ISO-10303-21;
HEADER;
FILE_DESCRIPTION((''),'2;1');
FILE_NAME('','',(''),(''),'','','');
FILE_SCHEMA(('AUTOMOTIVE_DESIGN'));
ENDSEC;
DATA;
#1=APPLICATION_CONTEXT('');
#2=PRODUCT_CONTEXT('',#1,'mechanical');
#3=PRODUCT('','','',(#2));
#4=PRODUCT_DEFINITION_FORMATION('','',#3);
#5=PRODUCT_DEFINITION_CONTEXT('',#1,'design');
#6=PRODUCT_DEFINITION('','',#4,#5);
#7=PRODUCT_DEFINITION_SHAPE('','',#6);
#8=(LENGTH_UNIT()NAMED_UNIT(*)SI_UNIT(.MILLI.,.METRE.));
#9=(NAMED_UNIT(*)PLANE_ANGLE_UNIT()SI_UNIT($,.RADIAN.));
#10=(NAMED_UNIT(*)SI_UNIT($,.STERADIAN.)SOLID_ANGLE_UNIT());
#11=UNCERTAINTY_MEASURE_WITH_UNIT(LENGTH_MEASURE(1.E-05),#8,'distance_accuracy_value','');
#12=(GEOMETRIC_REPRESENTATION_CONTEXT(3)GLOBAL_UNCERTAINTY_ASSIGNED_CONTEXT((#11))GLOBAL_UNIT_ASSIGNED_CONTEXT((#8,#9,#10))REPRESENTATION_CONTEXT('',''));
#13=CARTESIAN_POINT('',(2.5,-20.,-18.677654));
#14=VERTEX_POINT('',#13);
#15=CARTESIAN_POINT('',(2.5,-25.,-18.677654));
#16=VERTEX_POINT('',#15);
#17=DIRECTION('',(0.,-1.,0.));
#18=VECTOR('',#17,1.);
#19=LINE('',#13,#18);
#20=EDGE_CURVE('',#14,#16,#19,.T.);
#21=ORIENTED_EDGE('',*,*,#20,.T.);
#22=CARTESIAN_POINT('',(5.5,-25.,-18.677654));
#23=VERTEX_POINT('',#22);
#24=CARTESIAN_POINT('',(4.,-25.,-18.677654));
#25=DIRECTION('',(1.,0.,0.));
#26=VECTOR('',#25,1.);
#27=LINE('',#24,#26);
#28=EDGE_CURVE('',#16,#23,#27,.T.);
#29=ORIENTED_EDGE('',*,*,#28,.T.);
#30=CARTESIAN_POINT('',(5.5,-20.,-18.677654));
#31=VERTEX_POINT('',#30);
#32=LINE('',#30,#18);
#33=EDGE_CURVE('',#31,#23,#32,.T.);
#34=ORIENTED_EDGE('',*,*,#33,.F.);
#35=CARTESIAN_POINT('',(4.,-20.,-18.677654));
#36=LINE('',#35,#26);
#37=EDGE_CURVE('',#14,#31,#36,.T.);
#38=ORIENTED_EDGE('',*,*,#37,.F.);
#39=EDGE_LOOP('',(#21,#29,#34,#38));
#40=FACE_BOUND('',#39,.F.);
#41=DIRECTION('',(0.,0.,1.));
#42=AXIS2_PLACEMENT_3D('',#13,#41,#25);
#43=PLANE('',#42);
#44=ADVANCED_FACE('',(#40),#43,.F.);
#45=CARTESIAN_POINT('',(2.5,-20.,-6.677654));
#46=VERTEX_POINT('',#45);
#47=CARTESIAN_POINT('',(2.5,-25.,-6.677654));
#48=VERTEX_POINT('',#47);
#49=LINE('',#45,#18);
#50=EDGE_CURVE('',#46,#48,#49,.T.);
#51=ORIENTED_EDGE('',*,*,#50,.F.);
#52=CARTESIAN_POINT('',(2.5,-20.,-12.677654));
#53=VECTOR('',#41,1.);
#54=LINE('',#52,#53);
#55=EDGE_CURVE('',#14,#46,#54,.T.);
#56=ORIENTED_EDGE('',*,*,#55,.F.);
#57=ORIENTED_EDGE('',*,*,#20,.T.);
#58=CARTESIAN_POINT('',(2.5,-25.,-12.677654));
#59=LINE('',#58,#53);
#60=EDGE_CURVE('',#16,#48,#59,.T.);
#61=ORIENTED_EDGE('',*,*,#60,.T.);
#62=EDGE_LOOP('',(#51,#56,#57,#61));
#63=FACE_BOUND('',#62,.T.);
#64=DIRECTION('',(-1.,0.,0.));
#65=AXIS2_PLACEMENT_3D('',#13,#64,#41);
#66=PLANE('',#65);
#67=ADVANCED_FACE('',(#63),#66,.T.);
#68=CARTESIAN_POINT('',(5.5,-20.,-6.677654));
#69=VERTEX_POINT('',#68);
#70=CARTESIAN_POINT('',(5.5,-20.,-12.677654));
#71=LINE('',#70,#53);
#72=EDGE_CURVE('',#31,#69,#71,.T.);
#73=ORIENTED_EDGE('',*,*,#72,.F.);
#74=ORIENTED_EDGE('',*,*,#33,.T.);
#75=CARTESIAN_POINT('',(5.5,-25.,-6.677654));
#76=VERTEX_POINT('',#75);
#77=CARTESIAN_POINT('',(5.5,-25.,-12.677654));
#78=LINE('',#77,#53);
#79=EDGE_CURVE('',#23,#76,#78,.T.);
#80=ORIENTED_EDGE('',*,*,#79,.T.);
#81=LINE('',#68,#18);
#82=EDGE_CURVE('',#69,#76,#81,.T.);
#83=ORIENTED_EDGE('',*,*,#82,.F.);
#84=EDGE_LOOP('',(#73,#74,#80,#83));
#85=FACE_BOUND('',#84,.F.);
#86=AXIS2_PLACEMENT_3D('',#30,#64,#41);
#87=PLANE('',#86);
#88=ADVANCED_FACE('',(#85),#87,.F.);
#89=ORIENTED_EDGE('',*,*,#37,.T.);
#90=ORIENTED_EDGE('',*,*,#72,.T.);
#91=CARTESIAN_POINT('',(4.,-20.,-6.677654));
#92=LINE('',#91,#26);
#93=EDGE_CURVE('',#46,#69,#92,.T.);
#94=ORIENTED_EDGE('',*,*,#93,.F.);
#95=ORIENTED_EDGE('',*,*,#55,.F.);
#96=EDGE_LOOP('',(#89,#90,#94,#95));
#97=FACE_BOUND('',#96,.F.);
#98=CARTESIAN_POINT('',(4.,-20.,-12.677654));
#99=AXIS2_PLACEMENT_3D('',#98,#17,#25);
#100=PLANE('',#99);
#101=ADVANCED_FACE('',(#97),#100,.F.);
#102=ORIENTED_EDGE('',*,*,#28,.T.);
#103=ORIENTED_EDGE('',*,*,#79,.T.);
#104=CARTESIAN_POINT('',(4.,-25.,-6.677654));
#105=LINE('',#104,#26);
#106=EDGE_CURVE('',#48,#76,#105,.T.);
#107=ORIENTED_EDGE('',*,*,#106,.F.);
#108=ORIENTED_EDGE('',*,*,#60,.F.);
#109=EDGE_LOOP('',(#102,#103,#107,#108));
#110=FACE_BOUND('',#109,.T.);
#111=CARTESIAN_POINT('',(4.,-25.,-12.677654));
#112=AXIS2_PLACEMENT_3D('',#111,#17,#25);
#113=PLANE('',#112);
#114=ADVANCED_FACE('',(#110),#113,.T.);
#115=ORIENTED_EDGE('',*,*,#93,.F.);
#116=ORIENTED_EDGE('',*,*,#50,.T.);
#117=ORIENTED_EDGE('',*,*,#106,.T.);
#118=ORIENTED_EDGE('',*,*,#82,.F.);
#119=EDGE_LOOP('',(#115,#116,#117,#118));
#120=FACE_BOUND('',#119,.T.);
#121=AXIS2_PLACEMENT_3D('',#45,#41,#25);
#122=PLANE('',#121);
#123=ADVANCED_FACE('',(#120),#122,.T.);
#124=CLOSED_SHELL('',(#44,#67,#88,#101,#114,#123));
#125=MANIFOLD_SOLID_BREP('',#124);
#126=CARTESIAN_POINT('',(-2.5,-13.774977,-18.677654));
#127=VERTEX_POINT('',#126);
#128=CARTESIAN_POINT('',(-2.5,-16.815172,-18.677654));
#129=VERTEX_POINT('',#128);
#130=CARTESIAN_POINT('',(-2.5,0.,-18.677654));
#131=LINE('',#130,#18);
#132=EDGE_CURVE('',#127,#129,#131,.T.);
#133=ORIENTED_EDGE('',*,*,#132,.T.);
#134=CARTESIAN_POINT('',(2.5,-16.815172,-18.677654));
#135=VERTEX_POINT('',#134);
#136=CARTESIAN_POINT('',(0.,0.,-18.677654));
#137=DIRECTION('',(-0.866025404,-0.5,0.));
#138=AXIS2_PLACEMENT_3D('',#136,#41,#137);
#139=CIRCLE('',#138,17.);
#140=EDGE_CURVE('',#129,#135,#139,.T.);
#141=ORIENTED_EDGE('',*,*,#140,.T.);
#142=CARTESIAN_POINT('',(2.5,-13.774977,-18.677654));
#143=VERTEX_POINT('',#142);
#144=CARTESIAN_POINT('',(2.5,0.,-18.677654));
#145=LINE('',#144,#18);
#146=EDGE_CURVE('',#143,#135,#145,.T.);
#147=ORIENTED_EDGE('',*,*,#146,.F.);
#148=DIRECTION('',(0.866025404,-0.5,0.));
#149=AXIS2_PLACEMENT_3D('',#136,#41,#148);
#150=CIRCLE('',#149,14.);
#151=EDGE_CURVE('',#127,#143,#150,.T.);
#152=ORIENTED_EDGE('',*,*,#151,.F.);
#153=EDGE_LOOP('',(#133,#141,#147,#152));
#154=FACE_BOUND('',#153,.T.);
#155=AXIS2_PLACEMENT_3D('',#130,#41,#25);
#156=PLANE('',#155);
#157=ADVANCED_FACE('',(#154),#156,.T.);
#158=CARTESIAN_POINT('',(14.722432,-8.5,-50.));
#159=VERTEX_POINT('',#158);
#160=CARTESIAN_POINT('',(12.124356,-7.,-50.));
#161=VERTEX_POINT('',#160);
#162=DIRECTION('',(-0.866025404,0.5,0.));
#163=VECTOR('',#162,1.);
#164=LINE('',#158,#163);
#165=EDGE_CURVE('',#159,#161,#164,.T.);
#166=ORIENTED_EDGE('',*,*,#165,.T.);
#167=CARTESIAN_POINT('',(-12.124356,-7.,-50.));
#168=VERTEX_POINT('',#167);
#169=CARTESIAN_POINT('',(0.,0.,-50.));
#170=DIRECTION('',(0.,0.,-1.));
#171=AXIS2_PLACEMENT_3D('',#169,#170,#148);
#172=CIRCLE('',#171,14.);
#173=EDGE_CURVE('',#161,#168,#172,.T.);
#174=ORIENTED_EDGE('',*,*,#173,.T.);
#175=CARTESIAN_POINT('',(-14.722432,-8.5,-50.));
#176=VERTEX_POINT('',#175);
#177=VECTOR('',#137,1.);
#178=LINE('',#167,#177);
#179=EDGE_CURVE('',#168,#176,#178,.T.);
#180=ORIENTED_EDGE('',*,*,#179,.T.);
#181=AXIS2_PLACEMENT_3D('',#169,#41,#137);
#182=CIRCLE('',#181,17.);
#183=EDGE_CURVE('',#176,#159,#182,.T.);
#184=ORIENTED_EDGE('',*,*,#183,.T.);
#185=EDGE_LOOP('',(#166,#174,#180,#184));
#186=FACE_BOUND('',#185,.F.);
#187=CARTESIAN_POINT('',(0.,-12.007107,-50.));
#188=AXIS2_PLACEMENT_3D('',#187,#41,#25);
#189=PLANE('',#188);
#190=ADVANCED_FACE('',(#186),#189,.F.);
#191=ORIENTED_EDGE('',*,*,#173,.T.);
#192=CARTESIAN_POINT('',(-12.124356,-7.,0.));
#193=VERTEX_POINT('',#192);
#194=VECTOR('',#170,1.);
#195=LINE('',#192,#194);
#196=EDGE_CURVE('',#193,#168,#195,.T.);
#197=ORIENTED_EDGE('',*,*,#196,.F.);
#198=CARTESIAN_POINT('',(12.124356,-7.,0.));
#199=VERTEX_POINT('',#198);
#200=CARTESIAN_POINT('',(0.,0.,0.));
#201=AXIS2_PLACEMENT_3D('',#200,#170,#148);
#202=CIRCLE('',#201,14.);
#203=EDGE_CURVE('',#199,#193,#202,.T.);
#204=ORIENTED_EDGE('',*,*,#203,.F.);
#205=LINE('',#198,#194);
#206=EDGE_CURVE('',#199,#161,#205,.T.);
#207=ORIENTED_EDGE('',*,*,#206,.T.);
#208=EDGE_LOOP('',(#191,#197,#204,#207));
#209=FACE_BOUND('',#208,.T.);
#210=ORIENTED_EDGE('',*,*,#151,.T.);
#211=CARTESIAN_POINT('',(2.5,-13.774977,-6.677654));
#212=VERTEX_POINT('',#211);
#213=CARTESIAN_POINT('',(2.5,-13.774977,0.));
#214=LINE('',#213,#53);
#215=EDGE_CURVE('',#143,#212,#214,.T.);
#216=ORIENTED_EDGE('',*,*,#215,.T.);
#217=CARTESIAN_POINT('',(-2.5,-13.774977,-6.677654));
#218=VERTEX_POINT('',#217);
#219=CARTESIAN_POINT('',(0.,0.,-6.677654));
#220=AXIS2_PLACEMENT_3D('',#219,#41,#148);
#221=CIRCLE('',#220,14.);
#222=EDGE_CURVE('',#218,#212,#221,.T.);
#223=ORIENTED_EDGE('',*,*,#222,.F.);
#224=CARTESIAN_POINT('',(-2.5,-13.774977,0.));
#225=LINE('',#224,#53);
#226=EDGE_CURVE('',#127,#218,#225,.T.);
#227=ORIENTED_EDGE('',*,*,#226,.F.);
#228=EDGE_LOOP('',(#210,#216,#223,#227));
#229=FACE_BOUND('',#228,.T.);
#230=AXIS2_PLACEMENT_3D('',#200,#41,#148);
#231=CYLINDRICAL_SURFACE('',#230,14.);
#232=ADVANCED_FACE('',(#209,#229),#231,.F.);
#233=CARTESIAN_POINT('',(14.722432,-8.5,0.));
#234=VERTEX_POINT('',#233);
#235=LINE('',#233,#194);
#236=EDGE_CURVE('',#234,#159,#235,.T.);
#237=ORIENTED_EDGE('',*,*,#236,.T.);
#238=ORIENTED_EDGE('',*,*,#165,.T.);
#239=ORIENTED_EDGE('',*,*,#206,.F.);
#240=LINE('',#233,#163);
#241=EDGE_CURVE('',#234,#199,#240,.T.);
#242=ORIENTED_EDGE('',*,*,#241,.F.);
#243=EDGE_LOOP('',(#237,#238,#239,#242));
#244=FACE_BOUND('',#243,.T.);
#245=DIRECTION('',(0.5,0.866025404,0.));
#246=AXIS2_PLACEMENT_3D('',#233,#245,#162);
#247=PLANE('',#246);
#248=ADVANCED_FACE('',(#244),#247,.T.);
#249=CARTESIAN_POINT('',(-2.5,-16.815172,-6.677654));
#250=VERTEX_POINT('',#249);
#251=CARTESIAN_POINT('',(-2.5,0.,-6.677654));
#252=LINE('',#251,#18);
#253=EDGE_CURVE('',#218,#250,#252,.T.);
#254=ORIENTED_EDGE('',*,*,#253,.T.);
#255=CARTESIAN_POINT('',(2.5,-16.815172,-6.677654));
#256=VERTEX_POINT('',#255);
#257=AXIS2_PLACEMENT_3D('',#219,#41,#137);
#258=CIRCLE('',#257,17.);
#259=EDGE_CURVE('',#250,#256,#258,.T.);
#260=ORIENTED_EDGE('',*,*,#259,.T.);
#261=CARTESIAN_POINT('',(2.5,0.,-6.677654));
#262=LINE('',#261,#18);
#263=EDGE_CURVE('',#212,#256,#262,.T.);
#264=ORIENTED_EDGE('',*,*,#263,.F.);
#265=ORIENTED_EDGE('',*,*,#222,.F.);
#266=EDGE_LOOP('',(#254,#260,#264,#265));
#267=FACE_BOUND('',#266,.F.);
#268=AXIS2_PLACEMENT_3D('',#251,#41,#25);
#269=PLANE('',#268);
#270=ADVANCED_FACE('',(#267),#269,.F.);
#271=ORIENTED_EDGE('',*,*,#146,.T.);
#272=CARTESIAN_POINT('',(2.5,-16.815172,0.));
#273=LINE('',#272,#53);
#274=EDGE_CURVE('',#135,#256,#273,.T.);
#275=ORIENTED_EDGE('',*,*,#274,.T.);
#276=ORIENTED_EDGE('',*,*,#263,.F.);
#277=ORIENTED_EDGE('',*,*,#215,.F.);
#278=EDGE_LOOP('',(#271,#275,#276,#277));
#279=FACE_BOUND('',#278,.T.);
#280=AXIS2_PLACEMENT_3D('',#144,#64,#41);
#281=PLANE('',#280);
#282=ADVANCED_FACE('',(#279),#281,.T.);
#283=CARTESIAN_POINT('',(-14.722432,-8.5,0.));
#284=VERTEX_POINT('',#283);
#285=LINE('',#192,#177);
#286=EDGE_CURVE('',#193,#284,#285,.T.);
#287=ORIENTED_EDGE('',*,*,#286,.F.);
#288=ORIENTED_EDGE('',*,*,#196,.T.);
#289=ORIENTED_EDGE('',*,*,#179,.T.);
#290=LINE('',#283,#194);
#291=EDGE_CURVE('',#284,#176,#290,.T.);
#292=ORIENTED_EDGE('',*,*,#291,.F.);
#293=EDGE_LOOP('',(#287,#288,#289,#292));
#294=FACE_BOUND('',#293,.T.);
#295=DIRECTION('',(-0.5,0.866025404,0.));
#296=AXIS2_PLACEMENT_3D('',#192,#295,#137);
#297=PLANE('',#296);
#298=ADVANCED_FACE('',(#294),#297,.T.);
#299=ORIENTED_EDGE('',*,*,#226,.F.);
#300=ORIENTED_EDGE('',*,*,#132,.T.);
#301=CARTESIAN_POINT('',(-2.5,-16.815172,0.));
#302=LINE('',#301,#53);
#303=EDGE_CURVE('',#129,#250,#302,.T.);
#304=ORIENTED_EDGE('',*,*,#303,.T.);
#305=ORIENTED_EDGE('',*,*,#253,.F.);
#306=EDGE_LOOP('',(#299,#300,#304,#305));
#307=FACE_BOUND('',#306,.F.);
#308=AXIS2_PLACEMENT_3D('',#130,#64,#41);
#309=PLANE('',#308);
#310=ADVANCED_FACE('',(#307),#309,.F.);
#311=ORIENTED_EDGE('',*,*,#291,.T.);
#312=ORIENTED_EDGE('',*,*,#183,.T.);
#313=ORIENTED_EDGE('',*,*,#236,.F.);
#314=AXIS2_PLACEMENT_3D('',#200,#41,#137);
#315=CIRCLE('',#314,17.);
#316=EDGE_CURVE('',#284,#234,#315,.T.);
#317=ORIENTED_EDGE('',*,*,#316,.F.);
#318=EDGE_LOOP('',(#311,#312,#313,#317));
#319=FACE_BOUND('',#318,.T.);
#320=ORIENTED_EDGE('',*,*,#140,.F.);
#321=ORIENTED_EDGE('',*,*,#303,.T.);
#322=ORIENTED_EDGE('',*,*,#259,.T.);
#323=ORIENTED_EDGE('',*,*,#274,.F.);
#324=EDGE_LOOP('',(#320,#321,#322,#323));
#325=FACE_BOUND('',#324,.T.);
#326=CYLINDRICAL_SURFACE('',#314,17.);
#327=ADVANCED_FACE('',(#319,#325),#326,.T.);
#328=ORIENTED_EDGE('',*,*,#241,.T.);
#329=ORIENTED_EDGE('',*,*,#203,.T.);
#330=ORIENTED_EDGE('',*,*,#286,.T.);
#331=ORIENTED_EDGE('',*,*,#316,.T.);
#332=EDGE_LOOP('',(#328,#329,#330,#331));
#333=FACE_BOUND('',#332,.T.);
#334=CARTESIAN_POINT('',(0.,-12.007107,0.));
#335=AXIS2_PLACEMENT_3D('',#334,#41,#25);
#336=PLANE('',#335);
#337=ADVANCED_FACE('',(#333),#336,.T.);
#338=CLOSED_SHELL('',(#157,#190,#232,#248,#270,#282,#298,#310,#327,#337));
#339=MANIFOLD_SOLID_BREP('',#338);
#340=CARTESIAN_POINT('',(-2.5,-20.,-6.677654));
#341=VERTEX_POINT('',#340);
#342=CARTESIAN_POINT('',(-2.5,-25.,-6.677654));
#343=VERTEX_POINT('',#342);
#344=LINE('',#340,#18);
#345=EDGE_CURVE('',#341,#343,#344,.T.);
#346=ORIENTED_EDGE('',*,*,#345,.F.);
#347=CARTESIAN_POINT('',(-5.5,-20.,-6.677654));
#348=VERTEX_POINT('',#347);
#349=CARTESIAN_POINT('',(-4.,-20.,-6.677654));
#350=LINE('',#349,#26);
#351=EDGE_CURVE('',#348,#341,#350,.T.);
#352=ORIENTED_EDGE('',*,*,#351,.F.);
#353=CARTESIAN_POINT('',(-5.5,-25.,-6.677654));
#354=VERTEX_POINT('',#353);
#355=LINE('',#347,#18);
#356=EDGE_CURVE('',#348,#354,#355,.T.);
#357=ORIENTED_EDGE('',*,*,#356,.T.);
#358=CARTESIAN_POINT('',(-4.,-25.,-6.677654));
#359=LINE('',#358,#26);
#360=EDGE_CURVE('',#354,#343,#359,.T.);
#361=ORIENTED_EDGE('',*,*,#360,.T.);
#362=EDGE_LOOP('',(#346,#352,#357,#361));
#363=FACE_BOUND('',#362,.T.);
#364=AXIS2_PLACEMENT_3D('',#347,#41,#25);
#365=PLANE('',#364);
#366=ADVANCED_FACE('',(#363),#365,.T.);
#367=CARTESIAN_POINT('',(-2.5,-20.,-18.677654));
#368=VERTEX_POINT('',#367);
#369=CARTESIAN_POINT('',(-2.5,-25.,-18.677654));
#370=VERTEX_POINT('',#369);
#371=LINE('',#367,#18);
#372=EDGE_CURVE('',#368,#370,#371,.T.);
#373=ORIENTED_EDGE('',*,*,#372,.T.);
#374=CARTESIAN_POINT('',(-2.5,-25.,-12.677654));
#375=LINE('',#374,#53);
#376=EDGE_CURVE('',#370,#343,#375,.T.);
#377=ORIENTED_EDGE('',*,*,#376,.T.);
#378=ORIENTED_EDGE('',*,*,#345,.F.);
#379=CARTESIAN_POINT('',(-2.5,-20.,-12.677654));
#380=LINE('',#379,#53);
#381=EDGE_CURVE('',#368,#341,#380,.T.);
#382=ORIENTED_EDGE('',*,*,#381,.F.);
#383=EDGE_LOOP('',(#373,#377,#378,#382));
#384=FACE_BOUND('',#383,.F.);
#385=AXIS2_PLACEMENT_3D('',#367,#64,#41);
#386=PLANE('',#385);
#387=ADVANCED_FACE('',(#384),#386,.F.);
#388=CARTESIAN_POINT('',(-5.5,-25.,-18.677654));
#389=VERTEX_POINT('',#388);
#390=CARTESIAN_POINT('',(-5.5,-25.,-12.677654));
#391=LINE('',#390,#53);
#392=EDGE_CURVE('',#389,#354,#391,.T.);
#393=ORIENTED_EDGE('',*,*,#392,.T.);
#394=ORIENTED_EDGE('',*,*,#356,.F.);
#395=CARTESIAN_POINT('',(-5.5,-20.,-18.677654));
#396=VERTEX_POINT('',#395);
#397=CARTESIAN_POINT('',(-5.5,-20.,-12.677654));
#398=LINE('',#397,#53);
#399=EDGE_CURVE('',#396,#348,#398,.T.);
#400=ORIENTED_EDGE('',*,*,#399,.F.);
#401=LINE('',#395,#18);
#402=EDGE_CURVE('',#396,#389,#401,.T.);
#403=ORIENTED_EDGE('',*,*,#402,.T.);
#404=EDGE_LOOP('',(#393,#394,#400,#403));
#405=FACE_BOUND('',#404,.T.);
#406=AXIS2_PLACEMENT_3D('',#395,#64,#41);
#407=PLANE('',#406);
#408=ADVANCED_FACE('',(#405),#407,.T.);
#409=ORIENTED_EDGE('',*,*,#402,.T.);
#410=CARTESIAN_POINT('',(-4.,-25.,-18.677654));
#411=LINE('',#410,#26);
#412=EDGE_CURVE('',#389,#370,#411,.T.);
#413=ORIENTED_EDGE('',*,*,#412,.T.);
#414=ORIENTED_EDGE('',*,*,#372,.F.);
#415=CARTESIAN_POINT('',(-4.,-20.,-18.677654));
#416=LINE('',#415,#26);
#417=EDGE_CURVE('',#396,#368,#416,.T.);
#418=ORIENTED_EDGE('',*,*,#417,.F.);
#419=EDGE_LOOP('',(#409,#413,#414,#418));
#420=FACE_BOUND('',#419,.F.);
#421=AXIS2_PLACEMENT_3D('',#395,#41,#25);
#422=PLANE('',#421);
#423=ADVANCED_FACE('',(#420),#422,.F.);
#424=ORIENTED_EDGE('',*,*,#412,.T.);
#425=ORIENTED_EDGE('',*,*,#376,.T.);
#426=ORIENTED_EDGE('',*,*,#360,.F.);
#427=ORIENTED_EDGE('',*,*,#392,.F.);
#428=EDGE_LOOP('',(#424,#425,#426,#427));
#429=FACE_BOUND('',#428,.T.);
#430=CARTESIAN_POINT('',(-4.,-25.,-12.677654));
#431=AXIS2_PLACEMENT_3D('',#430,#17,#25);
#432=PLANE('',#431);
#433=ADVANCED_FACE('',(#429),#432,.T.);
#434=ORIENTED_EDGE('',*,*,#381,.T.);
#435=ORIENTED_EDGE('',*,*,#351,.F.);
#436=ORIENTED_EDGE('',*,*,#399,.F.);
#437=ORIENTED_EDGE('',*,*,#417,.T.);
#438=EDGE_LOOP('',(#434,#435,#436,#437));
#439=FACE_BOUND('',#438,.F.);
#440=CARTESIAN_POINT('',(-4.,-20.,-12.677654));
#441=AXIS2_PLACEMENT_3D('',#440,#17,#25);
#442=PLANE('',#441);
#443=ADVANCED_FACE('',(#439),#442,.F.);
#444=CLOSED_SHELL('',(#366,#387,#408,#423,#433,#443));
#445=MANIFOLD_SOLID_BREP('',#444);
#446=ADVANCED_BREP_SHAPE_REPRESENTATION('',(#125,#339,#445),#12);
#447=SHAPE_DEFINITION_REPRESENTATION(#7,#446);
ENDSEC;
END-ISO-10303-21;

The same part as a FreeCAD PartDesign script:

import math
import FreeCAD as App
import Part
import Sketcher
Q = App.Units.Quantity

doc = App.newDocument("Part")
body = doc.addObject("PartDesign::Body", "Body")

# Sketch on XY plane
sketch1 = body.newObject("Sketcher::SketchObject", "Sketch")
sketch1.AttachmentSupport = (doc.getObject("XY_Plane"), [""])
sketch1.MapMode = "FlatFace"
sketch1.addGeometry([
    Part.ArcOfCircle(Part.Circle(App.Vector(0, 0, 0), App.Vector(0, 0, 1), 14), math.radians(-150), math.radians(-30)),
    Part.LineSegment(App.Vector(-12.124356, -7, 0), App.Vector(-14.722432, -8.5, 0)),
    Part.ArcOfCircle(Part.Circle(App.Vector(0, 0, 0), App.Vector(0, 0, 1), 17), math.radians(-150), math.radians(-30)),
    Part.LineSegment(App.Vector(14.722432, -8.5, 0), App.Vector(12.124356, -7, 0)),
], False)
sketch1.addConstraint([
    Sketcher.Constraint("Coincident", 0, 1, 1, 1),
    Sketcher.Constraint("Coincident", 1, 2, 2, 1),
    Sketcher.Constraint("Coincident", 2, 2, 3, 1),
    Sketcher.Constraint("Coincident", 3, 2, 0, 2),
    Sketcher.Constraint("Coincident", 0, 3, -1, 1),
    Sketcher.Constraint("Coincident", 2, 3, -1, 1),
    Sketcher.Constraint("Horizontal", 1, 2, 2, 2),
    Sketcher.Constraint("Horizontal", 0, 1, 3, 2),
    Sketcher.Constraint("Radius", 0, Q("14 mm")),
    Sketcher.Constraint("Radius", 2, Q("17 mm")),
    Sketcher.Constraint("Angle", 1, Q("-150 deg")),
    Sketcher.Constraint("DistanceY", 0, 1, -1, 1, Q("7 mm")),
])
pad1 = body.newObject("PartDesign::Pad", "Pad")
pad1.Profile = sketch1
pad1.Length = 50
pad1.Reversed = True

# Sketch on XZ plane
sketch2 = body.newObject("Sketcher::SketchObject", "Sketch001")
sketch2.AttachmentSupport = (doc.getObject("XZ_Plane"), [""])
sketch2.MapMode = "FlatFace"
sketch2.addGeometry([
    Part.LineSegment(App.Vector(-2.5, -6.677654, 0), App.Vector(-2.5, -18.677654, 0)),
    Part.LineSegment(App.Vector(-2.5, -18.677654, 0), App.Vector(2.5, -18.677654, 0)),
    Part.LineSegment(App.Vector(2.5, -18.677654, 0), App.Vector(2.5, -6.677654, 0)),
    Part.LineSegment(App.Vector(2.5, -6.677654, 0), App.Vector(-2.5, -6.677654, 0)),
], False)
sketch2.addConstraint([
    Sketcher.Constraint("Coincident", 0, 2, 1, 1),
    Sketcher.Constraint("Coincident", 1, 2, 2, 1),
    Sketcher.Constraint("Coincident", 2, 2, 3, 1),
    Sketcher.Constraint("Coincident", 3, 2, 0, 1),
    Sketcher.Constraint("Vertical", 0),
    Sketcher.Constraint("Horizontal", 1),
    Sketcher.Constraint("Vertical", 2),
    Sketcher.Constraint("Horizontal", 3),
    Sketcher.Constraint("DistanceX", 1, 1, 1, 2, Q("5 mm")),
    Sketcher.Constraint("DistanceY", 0, 2, 0, 1, Q("12 mm")),
    Sketcher.Constraint("DistanceX", 0, 2, -1, 1, Q("2.5 mm")),
    Sketcher.Constraint("DistanceY", 0, 2, -1, 1, Q("18.677654 mm")),
])
pocket1 = body.newObject("PartDesign::Pocket", "Pocket")
pocket1.Profile = sketch2
pocket1.Length = 25
pocket1.Reversed = True
body2 = doc.addObject("PartDesign::Body", "Body001")

# Sketch on XZ plane
sketch3 = body2.newObject("Sketcher::SketchObject", "Sketch002")
sketch3.AttachmentSupport = (doc.getObject("XZ_Plane001"), [""])
sketch3.MapMode = "FlatFace"
sketch3.AttachmentOffset = App.Placement(App.Vector(0, 0, 20), App.Rotation())
sketch3.addGeometry([
    Part.LineSegment(App.Vector(2.5, -6.677654, 0), App.Vector(2.5, -18.677654, 0)),
    Part.LineSegment(App.Vector(2.5, -18.677654, 0), App.Vector(5.5, -18.677654, 0)),
    Part.LineSegment(App.Vector(5.5, -18.677654, 0), App.Vector(5.5, -6.677654, 0)),
    Part.LineSegment(App.Vector(5.5, -6.677654, 0), App.Vector(2.5, -6.677654, 0)),
], False)
sketch3.addConstraint([
    Sketcher.Constraint("Coincident", 0, 2, 1, 1),
    Sketcher.Constraint("Coincident", 1, 2, 2, 1),
    Sketcher.Constraint("Coincident", 2, 2, 3, 1),
    Sketcher.Constraint("Coincident", 3, 2, 0, 1),
    Sketcher.Constraint("Vertical", 0),
    Sketcher.Constraint("Horizontal", 1),
    Sketcher.Constraint("Vertical", 2),
    Sketcher.Constraint("Horizontal", 3),
    Sketcher.Constraint("DistanceX", 1, 1, 1, 2, Q("3 mm")),
    Sketcher.Constraint("DistanceY", 0, 2, 0, 1, Q("12 mm")),
    Sketcher.Constraint("DistanceX", -1, 1, 0, 2, Q("2.5 mm")),
    Sketcher.Constraint("DistanceY", 0, 2, -1, 1, Q("18.677654 mm")),
])
pad2 = body2.newObject("PartDesign::Pad", "Pad001")
pad2.Profile = sketch3
pad2.Length = 5
body3 = doc.addObject("PartDesign::Body", "Body002")

# Sketch on XZ plane
sketch4 = body3.newObject("Sketcher::SketchObject", "Sketch003")
sketch4.AttachmentSupport = (doc.getObject("XZ_Plane002"), [""])
sketch4.MapMode = "FlatFace"
sketch4.AttachmentOffset = App.Placement(App.Vector(0, 0, 20), App.Rotation())
sketch4.addGeometry([
    Part.LineSegment(App.Vector(-5.5, -6.677654, 0), App.Vector(-5.5, -18.677654, 0)),
    Part.LineSegment(App.Vector(-5.5, -18.677654, 0), App.Vector(-2.5, -18.677654, 0)),
    Part.LineSegment(App.Vector(-2.5, -18.677654, 0), App.Vector(-2.5, -6.677654, 0)),
    Part.LineSegment(App.Vector(-2.5, -6.677654, 0), App.Vector(-5.5, -6.677654, 0)),
], False)
sketch4.addConstraint([
    Sketcher.Constraint("Coincident", 0, 2, 1, 1),
    Sketcher.Constraint("Coincident", 1, 2, 2, 1),
    Sketcher.Constraint("Coincident", 2, 2, 3, 1),
    Sketcher.Constraint("Coincident", 3, 2, 0, 1),
    Sketcher.Constraint("Vertical", 0),
    Sketcher.Constraint("Horizontal", 1),
    Sketcher.Constraint("Vertical", 2),
    Sketcher.Constraint("Horizontal", 3),
    Sketcher.Constraint("DistanceX", 1, 1, 1, 2, Q("3 mm")),
    Sketcher.Constraint("DistanceY", 0, 2, 0, 1, Q("12 mm")),
    Sketcher.Constraint("DistanceX", 0, 2, -1, 1, Q("5.5 mm")),
    Sketcher.Constraint("DistanceY", 0, 2, -1, 1, Q("18.677654 mm")),
])
pad3 = body3.newObject("PartDesign::Pad", "Pad002")
pad3.Profile = sketch4
pad3.Length = 5

doc.recompute()
